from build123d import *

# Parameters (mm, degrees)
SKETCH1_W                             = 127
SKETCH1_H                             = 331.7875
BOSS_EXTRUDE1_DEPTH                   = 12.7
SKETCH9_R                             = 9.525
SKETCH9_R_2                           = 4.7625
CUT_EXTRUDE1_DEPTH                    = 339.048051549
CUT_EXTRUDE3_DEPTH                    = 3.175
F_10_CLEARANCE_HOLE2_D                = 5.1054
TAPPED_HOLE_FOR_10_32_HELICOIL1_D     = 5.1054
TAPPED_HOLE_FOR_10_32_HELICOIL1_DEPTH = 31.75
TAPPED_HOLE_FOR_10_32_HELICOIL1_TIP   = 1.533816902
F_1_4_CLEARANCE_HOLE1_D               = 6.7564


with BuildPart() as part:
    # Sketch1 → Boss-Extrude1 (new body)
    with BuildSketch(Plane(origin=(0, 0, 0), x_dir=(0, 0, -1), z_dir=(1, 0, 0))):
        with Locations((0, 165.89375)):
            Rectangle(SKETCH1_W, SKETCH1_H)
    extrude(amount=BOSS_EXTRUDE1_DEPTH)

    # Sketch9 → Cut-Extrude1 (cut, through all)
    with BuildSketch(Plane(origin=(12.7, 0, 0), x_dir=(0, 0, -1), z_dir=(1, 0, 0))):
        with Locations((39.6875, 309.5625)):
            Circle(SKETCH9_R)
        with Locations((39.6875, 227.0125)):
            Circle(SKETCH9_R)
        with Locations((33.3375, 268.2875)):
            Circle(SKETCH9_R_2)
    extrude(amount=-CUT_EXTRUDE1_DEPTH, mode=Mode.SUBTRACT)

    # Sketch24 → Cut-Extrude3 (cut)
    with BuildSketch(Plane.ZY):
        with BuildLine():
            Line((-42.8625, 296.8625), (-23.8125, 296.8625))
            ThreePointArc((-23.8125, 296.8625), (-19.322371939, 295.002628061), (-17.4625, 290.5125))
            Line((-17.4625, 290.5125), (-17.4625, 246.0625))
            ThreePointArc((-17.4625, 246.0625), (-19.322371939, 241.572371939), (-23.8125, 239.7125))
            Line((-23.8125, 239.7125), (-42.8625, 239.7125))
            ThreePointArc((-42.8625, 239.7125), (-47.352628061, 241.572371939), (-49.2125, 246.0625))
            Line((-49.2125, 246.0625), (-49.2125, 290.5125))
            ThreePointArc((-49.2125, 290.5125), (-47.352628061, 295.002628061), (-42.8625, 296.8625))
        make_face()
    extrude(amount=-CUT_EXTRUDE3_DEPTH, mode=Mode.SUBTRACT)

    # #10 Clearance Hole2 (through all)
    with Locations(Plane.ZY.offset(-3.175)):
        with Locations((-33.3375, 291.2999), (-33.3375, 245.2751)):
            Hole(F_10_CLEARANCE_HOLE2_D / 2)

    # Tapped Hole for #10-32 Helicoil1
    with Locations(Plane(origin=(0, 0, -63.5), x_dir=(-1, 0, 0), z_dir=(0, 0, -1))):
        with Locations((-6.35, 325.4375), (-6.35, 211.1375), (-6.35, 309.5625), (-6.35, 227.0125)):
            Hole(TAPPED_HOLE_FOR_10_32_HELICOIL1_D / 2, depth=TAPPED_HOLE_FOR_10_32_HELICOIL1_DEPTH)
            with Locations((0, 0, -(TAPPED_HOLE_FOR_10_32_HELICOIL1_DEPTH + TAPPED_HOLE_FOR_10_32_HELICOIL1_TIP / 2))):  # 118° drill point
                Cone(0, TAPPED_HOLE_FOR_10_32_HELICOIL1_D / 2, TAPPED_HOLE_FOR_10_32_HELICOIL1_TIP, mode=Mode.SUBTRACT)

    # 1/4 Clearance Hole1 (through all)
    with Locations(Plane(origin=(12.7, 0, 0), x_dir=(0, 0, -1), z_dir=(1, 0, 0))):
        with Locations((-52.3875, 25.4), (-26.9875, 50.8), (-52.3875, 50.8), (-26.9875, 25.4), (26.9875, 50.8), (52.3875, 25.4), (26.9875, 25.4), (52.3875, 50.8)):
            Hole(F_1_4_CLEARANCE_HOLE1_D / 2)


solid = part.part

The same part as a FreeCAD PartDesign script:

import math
import FreeCAD as App
import Part
import Sketcher
from FreeCAD import Vector
Q = App.Units.Quantity


def add_polygon(sketch, points):
    """Adds a closed chain of lines whose ends are joined by coincident constraints."""
    first, n = sketch.GeometryCount, len(points)
    for a, b in zip(points, points[1:] + points[:1]):
        sketch.addGeometry(Part.LineSegment(App.Vector(*a, 0), App.Vector(*b, 0)), False)
    for i in range(n):
        sketch.addConstraint(Sketcher.Constraint("Coincident", first + i, 2, first + (i + 1) % n, 1))

doc = App.newDocument("Part")
body = doc.addObject("PartDesign::Body", "Body")

sketch1 = body.newObject("Sketcher::SketchObject", "Sketch")
sketch1.AttachmentSupport = (doc.getObject("YZ_Plane"), [""])
sketch1.MapMode = "FlatFace"
add_polygon(sketch1, [(332, 64), (0, 64), (0, -64), (332, -64)])
sketch1.addConstraint([
    Sketcher.Constraint("Horizontal", 0),
    Sketcher.Constraint("Vertical", 1),
    Sketcher.Constraint("Horizontal", 2),
    Sketcher.Constraint("Vertical", 3),
    Sketcher.Constraint("Symmetric", 0, 2, 1, 2, -1, 1),
    Sketcher.Constraint("DistanceY", 1, 2, 1, 1, Q("5 in")),
    Sketcher.Constraint("DistanceX", 0, 2, 0, 1, Q("13.0625 in")),
])
pad1 = body.newObject("PartDesign::Pad", "Pad")
pad1.Profile = sketch1
pad1.Length = Q("0.5 in")

sketch2 = body.newObject("Sketcher::SketchObject", "Sketch001")
sketch2.AttachmentSupport = (doc.getObject("YZ_Plane"), [""])
sketch2.MapMode = "FlatFace"
sketch2.AttachmentOffset = App.Placement(Vector(0, 0, 0.5 * 25.4), App.Rotation())
sketch2.addGeometry([
    Part.Circle(Vector(309.6, -39.7, 0), Vector(0, 0, 1), 9.5),
    Part.Circle(Vector(227, -39.7, 0), Vector(0, 0, 1), 9.5),
    Part.Circle(Vector(268.3, -33.3, 0), Vector(0, 0, 1), 4.8),
], False)
sketch2.addConstraint([
    Sketcher.Constraint("Equal", 0, 1),
    Sketcher.Constraint("Horizontal", 0, 3, 1, 3),
    Sketcher.Constraint("Diameter", 0, Q("0.75 in")),
    Sketcher.Constraint("Diameter", 2, Q("0.375 in")),
    Sketcher.Constraint("DistanceX", 1, 3, 0, 3, Q("3.25 in")),
    Sketcher.Constraint("DistanceY", 0, 3, 2, 3, Q("0.25 in")),
    Sketcher.Constraint("DistanceX", -1, 1, 0, 3, Q("12.1875 in")),
    Sketcher.Constraint("DistanceY", 0, 3, -1, 1, Q("1.5625 in")),
    Sketcher.Constraint("DistanceX", -1, 1, 2, 3, Q("10.5625 in")),
])
pocket1 = body.newObject("PartDesign::Pocket", "Pocket")
pocket1.Profile = sketch2
pocket1.Type = "ThroughAll"

sketch3 = body.newObject("Sketcher::SketchObject", "Sketch002")
sketch3.AttachmentSupport = (doc.getObject("YZ_Plane"), [""])
sketch3.MapMode = "FlatFace"
sketch3.addGeometry([
    Part.LineSegment(Vector(297, -24, 0), Vector(297, -43, 0)),
    Part.ArcOfCircle(Part.Circle(Vector(291, -43, 0), Vector(0, 0, 1), 6), math.radians(-90), math.radians(0)),
    Part.LineSegment(Vector(291, -49, 0), Vector(246, -49, 0)),
    Part.ArcOfCircle(Part.Circle(Vector(246, -43, 0), Vector(0, 0, 1), 6), math.radians(180), math.radians(270)),
    Part.LineSegment(Vector(240, -43, 0), Vector(240, -24, 0)),
    Part.ArcOfCircle(Part.Circle(Vector(246, -24, 0), Vector(0, 0, 1), 6), math.radians(90), math.radians(180)),
    Part.LineSegment(Vector(246, -17, 0), Vector(291, -17, 0)),
    Part.ArcOfCircle(Part.Circle(Vector(291, -24, 0), Vector(0, 0, 1), 6), math.radians(0), math.radians(90)),
], False)
sketch3.addConstraint([
    Sketcher.Constraint("Tangent", 0, 2, 1, 2),
    Sketcher.Constraint("Tangent", 1, 1, 2, 1),
    Sketcher.Constraint("Tangent", 2, 2, 3, 2),
    Sketcher.Constraint("Tangent", 3, 1, 4, 1),
    Sketcher.Constraint("Tangent", 4, 2, 5, 2),
    Sketcher.Constraint("Tangent", 5, 1, 6, 1),
    Sketcher.Constraint("Tangent", 6, 2, 7, 2),
    Sketcher.Constraint("Tangent", 7, 1, 0, 1),
    Sketcher.Constraint("Vertical", 0),
    Sketcher.Constraint("Horizontal", 2),
    Sketcher.Constraint("Vertical", 4),
    Sketcher.Constraint("Horizontal", 6),
    Sketcher.Constraint("Equal", 1, 3),
    Sketcher.Constraint("Equal", 3, 5),
    Sketcher.Constraint("Equal", 5, 7),
    Sketcher.Constraint("Radius", 1, Q("0.25 in")),
    Sketcher.Constraint("DistanceX", 3, 3, 0, 2, Q("2 in")),
    Sketcher.Constraint("DistanceY", 1, 1, 7, 3, Q("1 in")),
    Sketcher.Constraint("DistanceX", -1, 1, 1, 3, Q("11.4375 in")),
    Sketcher.Constraint("DistanceY", 1, 3, -1, 1, Q("1.6875 in")),
])
pocket2 = body.newObject("PartDesign::Pocket", "Pocket001")
pocket2.Profile = sketch3
pocket2.Length = Q("0.125 in")
pocket2.Reversed = True

sketch4 = body.newObject("Sketcher::SketchObject", "Sketch003")
sketch4.AttachmentSupport = (doc.getObject("YZ_Plane"), [""])
sketch4.MapMode = "FlatFace"
sketch4.AttachmentOffset = App.Placement(Vector(0, 0, 0.125 * 25.4), App.Rotation())
sketch4.addGeometry([
    Part.Circle(Vector(291.3, -33.3, 0), Vector(0, 0, 1), 2.6),
    Part.Circle(Vector(245.3, -33.3, 0), Vector(0, 0, 1), 2.6),
], False)
sketch4.addConstraint([
    Sketcher.Constraint("Equal", 0, 1),
    Sketcher.Constraint("Horizontal", 0, 3, 1, 3),
    Sketcher.Constraint("Diameter", 0, Q("0.201 in")),
    Sketcher.Constraint("DistanceY", 0, 3, -1, 1, Q("1.3125 in")),
    Sketcher.Constraint("DistanceX", 1, 3, 0, 3, Q("1.812 in")),
    Sketcher.Constraint("DistanceX", -1, 1, 0, 3, Q("11.4685 in")),
])
doc.recompute()
hole = body.newObject("PartDesign::Hole", "Hole")
hole.Profile = sketch4
hole.ThreadType = "None"
hole.Diameter = Q("0.201 in")
hole.DepthType = "ThroughAll"
hole.Reversed = True

sketch5 = body.newObject("Sketcher::SketchObject", "Sketch004")
sketch5.AttachmentSupport = (doc.getObject("XY_Plane"), [""])
sketch5.MapMode = "FlatFace"
sketch5.AttachmentOffset = App.Placement(Vector(0, 0, -2.5 * 25.4), App.Rotation())
sketch5.addGeometry([
    Part.Circle(Vector(6.3, 325.4, 0), Vector(0, 0, 1), 2.6),
    Part.Circle(Vector(6.3, 211.1, 0), Vector(0, 0, 1), 2.6),
    Part.Circle(Vector(6.3, 309.6, 0), Vector(0, 0, 1), 2.6),
    Part.Circle(Vector(6.3, 227, 0), Vector(0, 0, 1), 2.6),
], False)
sketch5.addConstraint([
    Sketcher.Constraint("Equal", 0, 1),
    Sketcher.Constraint("Equal", 1, 2),
    Sketcher.Constraint("Equal", 2, 3),
    Sketcher.Constraint("Vertical", 0, 3, 1, 3),
    Sketcher.Constraint("Vertical", 1, 3, 2, 3),
    Sketcher.Constraint("Vertical", 2, 3, 3, 3),
    Sketcher.Constraint("Diameter", 0, Q("0.201 in")),
    Sketcher.Constraint("DistanceY", 1, 3, 0, 3, Q("4.5 in")),
    Sketcher.Constraint("DistanceX", -1, 1, 0, 3, Q("0.25 in")),
    Sketcher.Constraint("DistanceY", 3, 3, 2, 3, Q("3.25 in")),
    Sketcher.Constraint("DistanceY", -1, 1, 0, 3, Q("12.8125 in")),
    Sketcher.Constraint("DistanceY", -1, 1, 2, 3, Q("12.1875 in")),
])
doc.recompute()
hole2 = body.newObject("PartDesign::Hole", "Hole001")
hole2.Profile = sketch5
hole2.ThreadType = "None"
hole2.Diameter = Q("0.201 in")
hole2.DepthType = "Dimension"
hole2.Depth = Q("1.25 in")
hole2.DrillPoint = "Angled"
hole2.DrillPointAngle = 118
hole2.Reversed = True

sketch6 = body.newObject("Sketcher::SketchObject", "Sketch005")
sketch6.AttachmentSupport = (doc.getObject("YZ_Plane"), [""])
sketch6.MapMode = "FlatFace"
sketch6.AttachmentOffset = App.Placement(Vector(0, 0, 0.5 * 25.4), App.Rotation())
sketch6.addGeometry([
    Part.Circle(Vector(25.4, 52.4, 0), Vector(0, 0, 1), 3.4),
    Part.Circle(Vector(50.8, 27, 0), Vector(0, 0, 1), 3.4),
    Part.Circle(Vector(50.8, 52.4, 0), Vector(0, 0, 1), 3.4),
    Part.Circle(Vector(25.4, 27, 0), Vector(0, 0, 1), 3.4),
    Part.Circle(Vector(50.8, -27, 0), Vector(0, 0, 1), 3.4),
    Part.Circle(Vector(25.4, -52.4, 0), Vector(0, 0, 1), 3.4),
    Part.Circle(Vector(25.4, -27, 0), Vector(0, 0, 1), 3.4),
    Part.Circle(Vector(50.8, -52.4, 0), Vector(0, 0, 1), 3.4),
], False)
sketch6.addConstraint([
    Sketcher.Constraint("Equal", 0, 1),
    Sketcher.Constraint("Equal", 1, 2),
    Sketcher.Constraint("Equal", 2, 3),
    Sketcher.Constraint("Equal", 3, 4),
    Sketcher.Constraint("Equal", 4, 5),
    Sketcher.Constraint("Equal", 5, 6),
    Sketcher.Constraint("Equal", 6, 7),
    Sketcher.Constraint("Symmetric", 1, 3, 4, 3, -1),
    Sketcher.Constraint("Symmetric", 0, 3, 5, 3, -1),
    Sketcher.Constraint("Symmetric", 3, 3, 6, 3, -1),
    Sketcher.Constraint("Symmetric", 2, 3, 7, 3, -1),
    Sketcher.Constraint("Horizontal", 0, 3, 2, 3),
    Sketcher.Constraint("Horizontal", 1, 3, 3, 3),
    Sketcher.Constraint("Vertical", 1, 3, 2, 3),
    Sketcher.Constraint("Vertical", 0, 3, 3, 3),
    Sketcher.Constraint("Diameter", 0, Q("0.266 in")),
    Sketcher.Constraint("DistanceX", -1, 1, 0, 3, Q("1 in")),
    Sketcher.Constraint("DistanceX", -1, 1, 1, 3, Q("2 in")),
    Sketcher.Constraint("DistanceY", 1, 3, 0, 3, Q("1 in")),
    Sketcher.Constraint("DistanceY", -1, 1, 0, 3, Q("2.0625 in")),
])
doc.recompute()
hole3 = body.newObject("PartDesign::Hole", "Hole002")
hole3.Profile = sketch6
hole3.ThreadType = "None"
hole3.Diameter = Q("0.266 in")
hole3.DepthType = "ThroughAll"

doc.recompute()
